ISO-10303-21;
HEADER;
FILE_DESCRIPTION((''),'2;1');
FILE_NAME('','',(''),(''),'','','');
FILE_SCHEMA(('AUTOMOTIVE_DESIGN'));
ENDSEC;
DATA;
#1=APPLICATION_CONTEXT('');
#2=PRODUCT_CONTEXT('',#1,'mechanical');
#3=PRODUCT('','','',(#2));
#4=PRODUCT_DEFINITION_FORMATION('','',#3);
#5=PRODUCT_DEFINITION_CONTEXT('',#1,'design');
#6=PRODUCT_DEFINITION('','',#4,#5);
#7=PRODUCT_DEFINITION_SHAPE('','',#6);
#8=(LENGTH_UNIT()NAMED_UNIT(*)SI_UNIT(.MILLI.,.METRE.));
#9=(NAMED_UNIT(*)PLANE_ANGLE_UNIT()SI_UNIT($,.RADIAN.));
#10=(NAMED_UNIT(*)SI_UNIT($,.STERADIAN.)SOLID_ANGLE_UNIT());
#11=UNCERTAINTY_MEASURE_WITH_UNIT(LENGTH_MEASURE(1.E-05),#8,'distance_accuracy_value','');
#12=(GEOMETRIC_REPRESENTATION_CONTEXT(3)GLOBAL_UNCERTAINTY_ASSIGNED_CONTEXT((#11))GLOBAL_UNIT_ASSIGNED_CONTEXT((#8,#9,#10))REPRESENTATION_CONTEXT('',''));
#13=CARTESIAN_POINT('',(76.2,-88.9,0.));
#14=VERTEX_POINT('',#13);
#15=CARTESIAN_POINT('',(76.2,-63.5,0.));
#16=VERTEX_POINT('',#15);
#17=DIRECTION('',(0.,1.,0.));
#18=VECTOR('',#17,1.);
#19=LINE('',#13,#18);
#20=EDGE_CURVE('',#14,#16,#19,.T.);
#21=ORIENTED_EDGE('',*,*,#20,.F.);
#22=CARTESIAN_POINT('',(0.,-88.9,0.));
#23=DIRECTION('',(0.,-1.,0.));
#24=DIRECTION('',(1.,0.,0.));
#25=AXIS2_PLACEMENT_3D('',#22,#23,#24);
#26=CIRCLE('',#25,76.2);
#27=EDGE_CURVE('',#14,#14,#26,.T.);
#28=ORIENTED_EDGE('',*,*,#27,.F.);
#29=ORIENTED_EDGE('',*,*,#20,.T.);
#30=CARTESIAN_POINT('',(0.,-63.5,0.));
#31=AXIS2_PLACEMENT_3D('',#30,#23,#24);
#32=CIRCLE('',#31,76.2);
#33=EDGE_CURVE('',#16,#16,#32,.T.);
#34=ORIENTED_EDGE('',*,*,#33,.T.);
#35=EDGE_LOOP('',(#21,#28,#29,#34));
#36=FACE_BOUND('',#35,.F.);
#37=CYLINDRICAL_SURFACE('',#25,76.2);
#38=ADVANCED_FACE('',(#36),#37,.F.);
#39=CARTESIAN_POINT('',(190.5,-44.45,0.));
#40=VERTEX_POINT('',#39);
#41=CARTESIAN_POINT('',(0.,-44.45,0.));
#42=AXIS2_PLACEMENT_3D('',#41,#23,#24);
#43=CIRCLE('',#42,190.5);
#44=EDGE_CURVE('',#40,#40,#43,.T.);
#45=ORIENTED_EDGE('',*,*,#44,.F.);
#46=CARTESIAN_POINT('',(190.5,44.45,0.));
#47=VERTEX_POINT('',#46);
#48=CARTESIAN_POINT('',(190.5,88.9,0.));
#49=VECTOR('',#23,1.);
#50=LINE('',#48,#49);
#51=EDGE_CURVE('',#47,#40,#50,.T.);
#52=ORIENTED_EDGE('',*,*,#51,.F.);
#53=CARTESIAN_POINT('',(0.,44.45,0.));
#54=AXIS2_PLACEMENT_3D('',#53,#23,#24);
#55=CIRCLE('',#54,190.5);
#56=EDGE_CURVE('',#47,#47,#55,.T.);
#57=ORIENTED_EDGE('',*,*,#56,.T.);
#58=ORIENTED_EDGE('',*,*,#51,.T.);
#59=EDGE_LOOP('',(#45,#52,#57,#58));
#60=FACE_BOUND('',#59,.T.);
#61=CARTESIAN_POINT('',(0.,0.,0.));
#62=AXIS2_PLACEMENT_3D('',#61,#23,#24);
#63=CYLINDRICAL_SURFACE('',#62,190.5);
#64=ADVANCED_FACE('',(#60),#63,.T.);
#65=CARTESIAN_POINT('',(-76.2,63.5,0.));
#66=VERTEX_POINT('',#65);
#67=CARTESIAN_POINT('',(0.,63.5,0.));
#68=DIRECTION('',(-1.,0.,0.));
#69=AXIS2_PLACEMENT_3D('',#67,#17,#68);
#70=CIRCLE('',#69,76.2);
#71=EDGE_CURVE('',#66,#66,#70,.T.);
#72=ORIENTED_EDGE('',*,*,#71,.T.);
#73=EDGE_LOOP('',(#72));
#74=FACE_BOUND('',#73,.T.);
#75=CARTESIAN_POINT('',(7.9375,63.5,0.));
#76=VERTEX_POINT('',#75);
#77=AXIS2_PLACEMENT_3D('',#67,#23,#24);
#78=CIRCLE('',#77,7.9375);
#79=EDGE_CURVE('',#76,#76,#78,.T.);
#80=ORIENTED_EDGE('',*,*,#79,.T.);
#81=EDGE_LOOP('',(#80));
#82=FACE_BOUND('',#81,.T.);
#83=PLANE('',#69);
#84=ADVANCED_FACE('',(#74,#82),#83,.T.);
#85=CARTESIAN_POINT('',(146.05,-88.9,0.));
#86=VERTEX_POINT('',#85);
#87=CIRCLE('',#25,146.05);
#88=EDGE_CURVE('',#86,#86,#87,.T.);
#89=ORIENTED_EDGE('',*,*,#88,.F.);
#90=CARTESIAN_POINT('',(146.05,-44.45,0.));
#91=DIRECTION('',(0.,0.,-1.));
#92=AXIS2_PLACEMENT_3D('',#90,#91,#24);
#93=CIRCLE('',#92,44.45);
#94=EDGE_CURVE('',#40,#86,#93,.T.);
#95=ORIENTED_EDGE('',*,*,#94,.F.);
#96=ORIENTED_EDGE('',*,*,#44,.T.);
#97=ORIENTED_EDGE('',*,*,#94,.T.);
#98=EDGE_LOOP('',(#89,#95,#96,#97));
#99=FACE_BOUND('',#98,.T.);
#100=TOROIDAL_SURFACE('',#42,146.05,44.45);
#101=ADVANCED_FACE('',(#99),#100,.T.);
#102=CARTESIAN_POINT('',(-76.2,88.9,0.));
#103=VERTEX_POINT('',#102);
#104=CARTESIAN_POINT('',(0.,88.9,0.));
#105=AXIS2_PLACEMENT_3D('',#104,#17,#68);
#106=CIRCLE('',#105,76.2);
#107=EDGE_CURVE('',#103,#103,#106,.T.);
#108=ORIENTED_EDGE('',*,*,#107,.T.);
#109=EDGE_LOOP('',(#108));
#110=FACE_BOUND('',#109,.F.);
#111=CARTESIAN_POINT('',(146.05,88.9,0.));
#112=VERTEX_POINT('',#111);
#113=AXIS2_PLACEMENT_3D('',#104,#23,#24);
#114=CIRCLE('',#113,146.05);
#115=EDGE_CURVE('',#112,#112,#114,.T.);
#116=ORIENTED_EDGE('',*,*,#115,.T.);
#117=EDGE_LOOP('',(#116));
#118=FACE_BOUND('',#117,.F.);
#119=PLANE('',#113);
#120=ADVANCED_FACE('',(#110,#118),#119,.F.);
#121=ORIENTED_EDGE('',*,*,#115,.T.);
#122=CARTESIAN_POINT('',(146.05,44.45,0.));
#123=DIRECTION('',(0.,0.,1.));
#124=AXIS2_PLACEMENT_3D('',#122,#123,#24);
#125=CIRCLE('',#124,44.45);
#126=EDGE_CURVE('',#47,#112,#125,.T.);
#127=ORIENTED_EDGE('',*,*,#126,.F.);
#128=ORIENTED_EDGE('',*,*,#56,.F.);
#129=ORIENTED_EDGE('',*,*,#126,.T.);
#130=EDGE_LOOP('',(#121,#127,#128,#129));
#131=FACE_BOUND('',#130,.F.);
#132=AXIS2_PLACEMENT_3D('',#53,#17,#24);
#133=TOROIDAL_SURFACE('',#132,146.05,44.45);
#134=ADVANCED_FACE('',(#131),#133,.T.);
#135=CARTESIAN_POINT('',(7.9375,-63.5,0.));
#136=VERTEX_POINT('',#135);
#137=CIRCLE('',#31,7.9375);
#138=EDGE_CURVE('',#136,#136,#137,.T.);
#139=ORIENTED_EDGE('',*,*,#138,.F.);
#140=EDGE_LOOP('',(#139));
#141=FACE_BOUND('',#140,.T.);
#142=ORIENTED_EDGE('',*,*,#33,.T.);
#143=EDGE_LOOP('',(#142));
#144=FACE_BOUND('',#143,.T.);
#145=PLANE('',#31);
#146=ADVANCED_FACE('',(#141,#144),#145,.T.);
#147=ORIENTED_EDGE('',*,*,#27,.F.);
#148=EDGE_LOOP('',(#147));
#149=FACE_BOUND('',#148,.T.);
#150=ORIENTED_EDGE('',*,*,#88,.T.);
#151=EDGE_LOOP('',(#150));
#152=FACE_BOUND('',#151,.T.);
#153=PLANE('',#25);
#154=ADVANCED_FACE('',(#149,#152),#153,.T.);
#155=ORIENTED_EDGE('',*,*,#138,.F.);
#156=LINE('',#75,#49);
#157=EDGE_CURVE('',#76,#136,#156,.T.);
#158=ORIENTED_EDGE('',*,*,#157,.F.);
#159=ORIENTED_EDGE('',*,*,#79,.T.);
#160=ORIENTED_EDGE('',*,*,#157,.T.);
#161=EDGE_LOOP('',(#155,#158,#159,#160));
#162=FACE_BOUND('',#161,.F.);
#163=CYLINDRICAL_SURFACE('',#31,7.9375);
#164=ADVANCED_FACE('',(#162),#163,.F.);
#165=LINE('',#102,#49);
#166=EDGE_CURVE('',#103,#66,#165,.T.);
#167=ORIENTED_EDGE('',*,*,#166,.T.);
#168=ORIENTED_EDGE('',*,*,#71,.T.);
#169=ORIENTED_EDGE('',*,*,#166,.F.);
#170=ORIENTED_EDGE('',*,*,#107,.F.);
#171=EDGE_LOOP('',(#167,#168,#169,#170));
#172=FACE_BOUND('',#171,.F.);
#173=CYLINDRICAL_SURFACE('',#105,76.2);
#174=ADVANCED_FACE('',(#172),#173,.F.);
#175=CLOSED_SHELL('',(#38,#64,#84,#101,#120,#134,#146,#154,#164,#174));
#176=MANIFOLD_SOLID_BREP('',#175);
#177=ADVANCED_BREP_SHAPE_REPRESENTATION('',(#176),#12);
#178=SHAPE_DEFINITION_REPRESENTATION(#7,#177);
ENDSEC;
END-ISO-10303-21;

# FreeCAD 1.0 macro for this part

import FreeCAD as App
import Part
import Sketcher

V = App.Vector
Q = App.Units.Quantity


def edges_at(feature, points):
    """Names of the edges that pass closest to the given points."""
    edges = feature.Shape.Edges
    near = lambda p: min(range(len(edges)), key=lambda i: edges[i].distToShape(Part.Vertex(*p))[0])
    return sorted({f"Edge{near(p) + 1}" for p in points})

doc = App.newDocument("Part")
body = doc.addObject("PartDesign::Body", "Body")

# Sketch on XZ plane
sketch1 = body.newObject("Sketcher::SketchObject", "Sketch")
sketch1.AttachmentSupport = (doc.getObject("XZ_Plane"), [""])
sketch1.MapMode = "FlatFace"
sketch1.addGeometry(Part.Circle(V(0, 0, 0), V(0, 0, 1), 190), False)
sketch1.addConstraint([
    Sketcher.Constraint("Coincident", 0, 3, -1, 1),
    Sketcher.Constraint("Diameter", 0, Q("15 in")),
])
pad1 = body.newObject("PartDesign::Pad", "Pad")
pad1.Profile = sketch1
pad1.Length = Q("7 in")
pad1.Midplane = True

# Sketch on XZ plane
sketch2 = body.newObject("Sketcher::SketchObject", "Sketch001")
sketch2.AttachmentSupport = (doc.getObject("XZ_Plane"), [""])
sketch2.MapMode = "FlatFace"
sketch2.AttachmentOffset = App.Placement(V(0, 0, 3.5 * 25.4), App.Rotation())
sketch2.addGeometry(Part.Circle(V(0, 0, 0), V(0, 0, 1), 76), False)
sketch2.addConstraint([
    Sketcher.Constraint("Coincident", 0, 3, -1, 1),
    Sketcher.Constraint("Diameter", 0, Q("6 in")),
])
pocket1 = body.newObject("PartDesign::Pocket", "Pocket")
pocket1.Profile = sketch2
pocket1.Length = Q("1 in")

# Sketch on XZ plane
sketch3 = body.newObject("Sketcher::SketchObject", "Sketch002")
sketch3.AttachmentSupport = (doc.getObject("XZ_Plane"), [""])
sketch3.MapMode = "FlatFace"
sketch3.AttachmentOffset = App.Placement(V(0, 0, -3.5 * 25.4), App.Rotation())
sketch3.addGeometry(Part.Circle(V(0, 0, 0), V(0, 0, 1), 76), False)
sketch3.addConstraint([
    Sketcher.Constraint("Coincident", 0, 3, -1, 1),
    Sketcher.Constraint("Diameter", 0, Q("6 in")),
])
pocket2 = body.newObject("PartDesign::Pocket", "Pocket001")
pocket2.Profile = sketch3
pocket2.Length = Q("1 in")
pocket2.Reversed = True

# Sketch on XZ plane
sketch4 = body.newObject("Sketcher::SketchObject", "Sketch003")
sketch4.AttachmentSupport = (doc.getObject("XZ_Plane"), [""])
sketch4.MapMode = "FlatFace"
sketch4.AttachmentOffset = App.Placement(V(0, 0, 2.5 * 25.4), App.Rotation())
sketch4.addGeometry(Part.Circle(V(0, 0, 0), V(0, 0, 1), 8), False)
sketch4.addConstraint([
    Sketcher.Constraint("Coincident", 0, 3, -1, 1),
    Sketcher.Constraint("Diameter", 0, Q("0.625 in")),
])
pocket3 = body.newObject("PartDesign::Pocket", "Pocket002")
pocket3.Profile = sketch4
pocket3.Length = Q("10 in")
pocket3.Midplane = True
doc.recompute()

fillet = body.newObject("PartDesign::Fillet", "Fillet")
fillet.Base = (pocket3, edges_at(pocket3, [(-190.5, 88.9, 0), (-190.5, -88.9, 0)]))
fillet.Radius = Q("1.75 in")

doc.recompute()
